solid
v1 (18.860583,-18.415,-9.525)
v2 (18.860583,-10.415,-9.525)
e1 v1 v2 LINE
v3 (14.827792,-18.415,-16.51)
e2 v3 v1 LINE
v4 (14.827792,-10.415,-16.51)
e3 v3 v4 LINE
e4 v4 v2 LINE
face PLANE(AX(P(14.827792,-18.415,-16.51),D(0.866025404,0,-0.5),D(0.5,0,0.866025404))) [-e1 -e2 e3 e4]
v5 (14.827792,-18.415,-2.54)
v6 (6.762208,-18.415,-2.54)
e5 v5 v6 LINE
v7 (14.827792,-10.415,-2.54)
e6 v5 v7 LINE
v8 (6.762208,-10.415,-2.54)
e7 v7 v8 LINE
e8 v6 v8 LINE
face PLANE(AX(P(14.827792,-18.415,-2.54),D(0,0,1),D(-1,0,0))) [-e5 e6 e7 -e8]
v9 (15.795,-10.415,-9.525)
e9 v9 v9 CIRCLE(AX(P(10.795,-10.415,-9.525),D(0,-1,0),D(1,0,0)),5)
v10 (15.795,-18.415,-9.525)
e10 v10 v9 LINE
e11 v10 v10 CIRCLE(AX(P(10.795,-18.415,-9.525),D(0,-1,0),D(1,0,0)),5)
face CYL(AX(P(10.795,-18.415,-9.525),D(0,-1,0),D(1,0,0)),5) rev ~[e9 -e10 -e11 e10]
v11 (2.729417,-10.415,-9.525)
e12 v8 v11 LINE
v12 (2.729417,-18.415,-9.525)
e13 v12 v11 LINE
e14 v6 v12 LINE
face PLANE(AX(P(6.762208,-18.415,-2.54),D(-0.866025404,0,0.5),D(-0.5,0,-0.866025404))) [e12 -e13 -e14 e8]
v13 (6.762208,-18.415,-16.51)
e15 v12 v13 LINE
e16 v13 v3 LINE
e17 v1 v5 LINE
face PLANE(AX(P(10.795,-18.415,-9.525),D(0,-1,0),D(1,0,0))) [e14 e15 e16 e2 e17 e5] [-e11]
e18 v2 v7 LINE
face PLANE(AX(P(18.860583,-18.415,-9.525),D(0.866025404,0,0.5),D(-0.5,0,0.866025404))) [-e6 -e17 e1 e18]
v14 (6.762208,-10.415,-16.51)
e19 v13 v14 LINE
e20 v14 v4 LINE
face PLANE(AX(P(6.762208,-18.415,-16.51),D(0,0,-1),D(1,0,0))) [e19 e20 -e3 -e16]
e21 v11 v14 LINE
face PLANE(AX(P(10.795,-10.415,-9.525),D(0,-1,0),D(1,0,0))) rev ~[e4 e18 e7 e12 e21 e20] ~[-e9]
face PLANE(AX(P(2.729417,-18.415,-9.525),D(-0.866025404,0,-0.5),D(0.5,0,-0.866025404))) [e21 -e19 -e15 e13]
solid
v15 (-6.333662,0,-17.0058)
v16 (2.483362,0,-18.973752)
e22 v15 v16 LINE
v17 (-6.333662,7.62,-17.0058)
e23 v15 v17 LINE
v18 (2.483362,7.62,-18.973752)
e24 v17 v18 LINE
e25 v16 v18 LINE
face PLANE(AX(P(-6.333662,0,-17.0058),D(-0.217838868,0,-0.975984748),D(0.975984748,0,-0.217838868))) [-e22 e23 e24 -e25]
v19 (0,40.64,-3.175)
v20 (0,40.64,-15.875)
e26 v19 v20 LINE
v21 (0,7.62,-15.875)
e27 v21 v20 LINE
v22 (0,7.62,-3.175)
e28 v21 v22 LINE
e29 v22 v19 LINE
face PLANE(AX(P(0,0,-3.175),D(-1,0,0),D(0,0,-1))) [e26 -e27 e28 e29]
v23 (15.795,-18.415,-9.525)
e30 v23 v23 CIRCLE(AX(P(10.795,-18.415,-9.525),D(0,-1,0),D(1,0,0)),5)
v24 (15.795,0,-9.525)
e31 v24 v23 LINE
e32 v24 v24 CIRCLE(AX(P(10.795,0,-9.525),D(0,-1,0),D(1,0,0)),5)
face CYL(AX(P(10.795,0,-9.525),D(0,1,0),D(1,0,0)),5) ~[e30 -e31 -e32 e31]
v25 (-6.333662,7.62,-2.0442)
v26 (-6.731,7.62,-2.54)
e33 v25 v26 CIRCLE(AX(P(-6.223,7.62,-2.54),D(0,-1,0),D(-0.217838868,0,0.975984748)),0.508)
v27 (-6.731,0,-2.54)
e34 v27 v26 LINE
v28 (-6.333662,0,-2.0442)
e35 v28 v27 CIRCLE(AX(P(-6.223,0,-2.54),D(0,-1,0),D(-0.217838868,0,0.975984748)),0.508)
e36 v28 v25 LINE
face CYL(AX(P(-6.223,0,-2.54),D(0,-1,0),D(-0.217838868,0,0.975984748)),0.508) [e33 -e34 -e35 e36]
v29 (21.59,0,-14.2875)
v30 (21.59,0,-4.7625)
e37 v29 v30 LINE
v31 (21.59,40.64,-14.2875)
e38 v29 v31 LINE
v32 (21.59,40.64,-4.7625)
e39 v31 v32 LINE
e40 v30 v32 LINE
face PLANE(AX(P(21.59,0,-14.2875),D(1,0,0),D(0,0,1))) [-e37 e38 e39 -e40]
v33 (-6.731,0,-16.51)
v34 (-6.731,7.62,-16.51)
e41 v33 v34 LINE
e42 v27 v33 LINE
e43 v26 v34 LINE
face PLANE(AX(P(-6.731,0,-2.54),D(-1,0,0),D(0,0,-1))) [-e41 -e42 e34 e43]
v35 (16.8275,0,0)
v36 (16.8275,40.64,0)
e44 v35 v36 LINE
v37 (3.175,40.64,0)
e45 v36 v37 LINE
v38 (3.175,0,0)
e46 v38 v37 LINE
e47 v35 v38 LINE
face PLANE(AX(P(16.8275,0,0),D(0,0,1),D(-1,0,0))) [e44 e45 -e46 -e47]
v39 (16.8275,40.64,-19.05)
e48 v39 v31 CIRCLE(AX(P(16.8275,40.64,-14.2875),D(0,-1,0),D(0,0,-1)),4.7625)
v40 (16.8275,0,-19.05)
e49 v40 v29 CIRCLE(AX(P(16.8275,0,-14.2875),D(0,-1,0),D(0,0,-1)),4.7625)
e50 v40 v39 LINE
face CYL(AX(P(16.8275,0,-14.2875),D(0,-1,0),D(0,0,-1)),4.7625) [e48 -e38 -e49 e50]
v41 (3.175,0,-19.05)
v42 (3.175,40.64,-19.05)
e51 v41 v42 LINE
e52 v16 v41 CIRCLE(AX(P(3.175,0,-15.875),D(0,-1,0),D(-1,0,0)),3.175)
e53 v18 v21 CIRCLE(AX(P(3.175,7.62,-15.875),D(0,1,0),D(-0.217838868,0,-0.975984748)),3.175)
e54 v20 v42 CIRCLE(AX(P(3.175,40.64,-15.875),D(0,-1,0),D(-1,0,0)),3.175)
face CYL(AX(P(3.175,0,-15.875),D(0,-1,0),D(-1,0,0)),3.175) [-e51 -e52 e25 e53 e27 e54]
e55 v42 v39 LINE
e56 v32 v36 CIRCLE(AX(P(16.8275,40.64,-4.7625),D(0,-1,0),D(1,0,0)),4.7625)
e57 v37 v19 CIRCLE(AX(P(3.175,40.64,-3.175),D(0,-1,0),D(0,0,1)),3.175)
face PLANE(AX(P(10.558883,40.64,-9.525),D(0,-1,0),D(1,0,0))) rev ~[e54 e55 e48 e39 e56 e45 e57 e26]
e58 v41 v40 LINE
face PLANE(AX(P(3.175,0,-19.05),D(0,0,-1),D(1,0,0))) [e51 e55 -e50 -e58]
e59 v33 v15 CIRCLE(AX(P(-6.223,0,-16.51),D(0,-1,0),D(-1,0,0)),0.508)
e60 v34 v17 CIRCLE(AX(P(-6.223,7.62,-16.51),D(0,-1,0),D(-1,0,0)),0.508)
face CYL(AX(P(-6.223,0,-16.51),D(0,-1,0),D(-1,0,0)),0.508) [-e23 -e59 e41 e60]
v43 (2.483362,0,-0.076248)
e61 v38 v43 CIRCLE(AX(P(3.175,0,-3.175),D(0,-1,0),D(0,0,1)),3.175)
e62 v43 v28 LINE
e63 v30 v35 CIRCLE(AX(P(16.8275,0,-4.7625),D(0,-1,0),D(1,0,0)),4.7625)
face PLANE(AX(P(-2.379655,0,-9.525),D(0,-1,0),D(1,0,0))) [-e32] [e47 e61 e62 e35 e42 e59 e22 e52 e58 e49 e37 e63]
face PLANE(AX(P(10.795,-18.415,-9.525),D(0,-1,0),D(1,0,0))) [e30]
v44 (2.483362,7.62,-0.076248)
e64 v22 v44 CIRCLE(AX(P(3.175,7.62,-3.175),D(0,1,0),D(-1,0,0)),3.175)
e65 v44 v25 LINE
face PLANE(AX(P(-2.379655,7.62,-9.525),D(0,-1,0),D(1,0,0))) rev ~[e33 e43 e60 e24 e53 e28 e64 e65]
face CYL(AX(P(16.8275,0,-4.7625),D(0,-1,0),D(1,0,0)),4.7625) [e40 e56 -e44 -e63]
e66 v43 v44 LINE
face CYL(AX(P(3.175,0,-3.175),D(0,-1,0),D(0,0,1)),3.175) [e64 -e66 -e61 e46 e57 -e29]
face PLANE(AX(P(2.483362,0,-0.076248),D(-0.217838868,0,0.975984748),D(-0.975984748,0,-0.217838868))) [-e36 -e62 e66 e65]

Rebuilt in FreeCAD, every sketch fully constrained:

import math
import FreeCAD as App
import Part
import Sketcher
Q = App.Units.Quantity


def add_polygon(sketch, points):
    """Adds a closed chain of lines whose ends are joined by coincident constraints."""
    first, n = sketch.GeometryCount, len(points)
    for a, b in zip(points, points[1:] + points[:1]):
        sketch.addGeometry(Part.LineSegment(App.Vector(*a, 0), App.Vector(*b, 0)), False)
    for i in range(n):
        sketch.addConstraint(Sketcher.Constraint("Coincident", first + i, 2, first + (i + 1) % n, 1))

doc = App.newDocument("Part")
body = doc.addObject("PartDesign::Body", "Body")

sketch1 = doc.addObject("Sketcher::SketchObject", "Sketch")
body.addObject(sketch1)
sketch1.AttachmentSupport = (doc.XZ_Plane, [""])
sketch1.MapMode = "FlatFace"
sketch1.addGeometry([
    Part.LineSegment(App.Vector(16.8275, 0, 0), App.Vector(3.175, 0, 0)),
    Part.ArcOfCircle(Part.Circle(App.Vector(3.175, -3.175, 0), App.Vector(0, 0, 1), 3.175), math.radians(90), math.radians(180)),
    Part.LineSegment(App.Vector(0, -3.175, 0), App.Vector(0, -15.875, 0)),
    Part.ArcOfCircle(Part.Circle(App.Vector(3.175, -15.875, 0), App.Vector(0, 0, 1), 3.175), math.radians(180), math.radians(270)),
    Part.LineSegment(App.Vector(3.175, -19.05, 0), App.Vector(16.8275, -19.05, 0)),
    Part.ArcOfCircle(Part.Circle(App.Vector(16.8275, -14.2875, 0), App.Vector(0, 0, 1), 4.7625), math.radians(-90), math.radians(0)),
    Part.LineSegment(App.Vector(21.59, -14.2875, 0), App.Vector(21.59, -4.7625, 0)),
    Part.ArcOfCircle(Part.Circle(App.Vector(16.8275, -4.7625, 0), App.Vector(0, 0, 1), 4.7625), math.radians(0), math.radians(90)),
], False)
sketch1.addConstraint([
    Sketcher.Constraint("Tangent", 0, 2, 1, 1),
    Sketcher.Constraint("Tangent", 1, 2, 2, 1),
    Sketcher.Constraint("Tangent", 2, 2, 3, 1),
    Sketcher.Constraint("Tangent", 3, 2, 4, 1),
    Sketcher.Constraint("Tangent", 4, 2, 5, 1),
    Sketcher.Constraint("Tangent", 5, 2, 6, 1),
    Sketcher.Constraint("Tangent", 6, 2, 7, 1),
    Sketcher.Constraint("Tangent", 7, 2, 0, 1),
    Sketcher.Constraint("Horizontal", 0),
    Sketcher.Constraint("Vertical", 2),
    Sketcher.Constraint("Horizontal", 4),
    Sketcher.Constraint("Vertical", 6),
    Sketcher.Constraint("Equal", 1, 3),
    Sketcher.Constraint("Equal", 5, 7),
    Sketcher.Constraint("PointOnObject", 0, 2, -1),
    Sketcher.Constraint("PointOnObject", 1, 2, -2),
    Sketcher.Constraint("DistanceY", 2, 2, 2, 1, Q("0.5 in")),
    Sketcher.Constraint("Radius", 1, Q("0.125 in")),
    Sketcher.Constraint("Radius", 5, Q("0.1875 in")),
    Sketcher.Constraint("DistanceX", -1, 1, 5, 2, Q("0.85 in")),
])
pad1 = doc.addObject("PartDesign::Pad", "Pad")
body.addObject(pad1)
pad1.Profile = sketch1
pad1.Length = Q("1.6 in")
pad1.Reversed = True

sketch2 = doc.addObject("Sketcher::SketchObject", "Sketch001")
body.addObject(sketch2)
sketch2.AttachmentSupport = (doc.XZ_Plane, [""])
sketch2.MapMode = "FlatFace"
sketch2.addGeometry(Part.Circle(App.Vector(10.795, -9.525, 0), App.Vector(0, 0, 1), 5), False)
sketch2.addConstraint([
    Sketcher.Constraint("Diameter", 0, Q("10 mm")),
    Sketcher.Constraint("DistanceX", -1, 1, 0, 3, Q("0.425 in")),
    Sketcher.Constraint("DistanceY", 0, 3, -1, 1, Q("0.375 in")),
])
pad2 = doc.addObject("PartDesign::Pad", "Pad001")
body.addObject(pad2)
pad2.Profile = sketch2
pad2.Length = Q("0.725 in")

sketch3 = doc.addObject("Sketcher::SketchObject", "Sketch002")
body.addObject(sketch3)
sketch3.AttachmentSupport = (doc.XZ_Plane, [""])
sketch3.MapMode = "FlatFace"
sketch3.addGeometry([
    Part.ArcOfCircle(Part.Circle(App.Vector(3.175, -3.175, 0), App.Vector(0, 0, 1), 3.175), math.radians(102.582131), math.radians(180)),
    Part.LineSegment(App.Vector(2.483362, -0.076248, 0), App.Vector(-6.333662, -2.0442, 0)),
    Part.ArcOfCircle(Part.Circle(App.Vector(-6.223, -2.54, 0), App.Vector(0, 0, 1), 0.508), math.radians(102.582131), math.radians(180)),
    Part.LineSegment(App.Vector(-6.731, -2.54, 0), App.Vector(-6.731, -16.51, 0)),
    Part.ArcOfCircle(Part.Circle(App.Vector(-6.223, -16.51, 0), App.Vector(0, 0, 1), 0.508), math.radians(180), math.radians(257.417869)),
    Part.LineSegment(App.Vector(-6.333662, -17.0058, 0), App.Vector(2.483362, -18.973752, 0)),
    Part.ArcOfCircle(Part.Circle(App.Vector(3.175, -15.875, 0), App.Vector(0, 0, 1), 3.175), math.radians(180), math.radians(257.417869)),
    Part.LineSegment(App.Vector(0, -15.875, 0), App.Vector(0, -3.175, 0)),
], False)
sketch3.addConstraint([
    Sketcher.Constraint("Tangent", 0, 1, 1, 1),
    Sketcher.Constraint("Tangent", 1, 2, 2, 1),
    Sketcher.Constraint("Tangent", 2, 2, 3, 1),
    Sketcher.Constraint("Tangent", 3, 2, 4, 1),
    Sketcher.Constraint("Tangent", 4, 2, 5, 1),
    Sketcher.Constraint("Tangent", 5, 2, 6, 2),
    Sketcher.Constraint("Tangent", 6, 1, 7, 1),
    Sketcher.Constraint("Tangent", 7, 2, 0, 2),
    Sketcher.Constraint("Vertical", 3),
    Sketcher.Constraint("Vertical", 7),
    Sketcher.Constraint("Equal", 2, 4),
    Sketcher.Constraint("Equal", 0, 6),
    Sketcher.Constraint("PointOnObject", 6, 1, -2),
    Sketcher.Constraint("Vertical", 1, 2, 4, 2),
    Sketcher.Constraint("Radius", 2, Q("0.02 in")),
    Sketcher.Constraint("DistanceY", 7, 1, 7, 2, Q("0.5 in")),
    Sketcher.Constraint("Radius", 0, Q("0.125 in")),
    Sketcher.Constraint("DistanceY", 3, 2, 3, 1, Q("0.55 in")),
    Sketcher.Constraint("DistanceY", 2, 3, -1, 1, Q("0.1 in")),
    Sketcher.Constraint("DistanceX", 2, 3, 0, 3, Q("0.37 in")),
])
pad3 = doc.addObject("PartDesign::Pad", "Pad002")
body.addObject(pad3)
pad3.Profile = sketch3
pad3.Length = Q("0.3 in")
pad3.Reversed = True
body2 = doc.addObject("PartDesign::Body", "Body001")

sketch4 = doc.addObject("Sketcher::SketchObject", "Sketch003")
body2.addObject(sketch4)
sketch4.AttachmentSupport = (doc.getObject("XZ_Plane001"), [""])
sketch4.MapMode = "FlatFace"
sketch4.AttachmentOffset = App.Placement(App.Vector(0, 0, 0.725 * 25.4), App.Rotation())
add_polygon(sketch4, [(14.827792, -2.54), (6.762208, -2.54), (2.729417, -9.525), (6.762208, -16.51), (14.827792, -16.51), (18.860583, -9.525)])
sketch4.addGeometry(Part.Circle(App.Vector(10.795, -9.525, 0), App.Vector(0, 0, 1), 5), False)
sketch4.addConstraint([
    Sketcher.Constraint("Horizontal", 0),
    Sketcher.Constraint("Horizontal", 3),
    Sketcher.Constraint("Parallel", 1, 4),
    Sketcher.Constraint("Parallel", 2, 5),
    Sketcher.Constraint("Horizontal", 6, 3, 1, 2),
    Sketcher.Constraint("Horizontal", 1, 2, 4, 2),
    Sketcher.Constraint("Vertical", 0, 2, 2, 2),
    Sketcher.Constraint("Vertical", 3, 2, 5, 2),
    Sketcher.Constraint("Angle", 1, Q("-120 deg")),
    Sketcher.Constraint("DistanceY", 0, 2, -1, 1, Q("0.1 in")),
    Sketcher.Constraint("Diameter", 6, Q("10 mm")),
    Sketcher.Constraint("DistanceY", 2, 2, -1, 1, Q("0.65 in")),
    Sketcher.Constraint("DistanceX", -1, 1, 6, 3, Q("0.425 in")),
    Sketcher.Constraint("DistanceX", 0, 2, 0, 1, Q("8.065583 mm")),
    Sketcher.Constraint("DistanceX", -1, 1, 0, 2, Q("6.762208 mm")),
])
pad4 = doc.addObject("PartDesign::Pad", "Pad003")
body2.addObject(pad4)
pad4.Profile = sketch4
pad4.Length = 8
pad4.Reversed = True

doc.recompute()
